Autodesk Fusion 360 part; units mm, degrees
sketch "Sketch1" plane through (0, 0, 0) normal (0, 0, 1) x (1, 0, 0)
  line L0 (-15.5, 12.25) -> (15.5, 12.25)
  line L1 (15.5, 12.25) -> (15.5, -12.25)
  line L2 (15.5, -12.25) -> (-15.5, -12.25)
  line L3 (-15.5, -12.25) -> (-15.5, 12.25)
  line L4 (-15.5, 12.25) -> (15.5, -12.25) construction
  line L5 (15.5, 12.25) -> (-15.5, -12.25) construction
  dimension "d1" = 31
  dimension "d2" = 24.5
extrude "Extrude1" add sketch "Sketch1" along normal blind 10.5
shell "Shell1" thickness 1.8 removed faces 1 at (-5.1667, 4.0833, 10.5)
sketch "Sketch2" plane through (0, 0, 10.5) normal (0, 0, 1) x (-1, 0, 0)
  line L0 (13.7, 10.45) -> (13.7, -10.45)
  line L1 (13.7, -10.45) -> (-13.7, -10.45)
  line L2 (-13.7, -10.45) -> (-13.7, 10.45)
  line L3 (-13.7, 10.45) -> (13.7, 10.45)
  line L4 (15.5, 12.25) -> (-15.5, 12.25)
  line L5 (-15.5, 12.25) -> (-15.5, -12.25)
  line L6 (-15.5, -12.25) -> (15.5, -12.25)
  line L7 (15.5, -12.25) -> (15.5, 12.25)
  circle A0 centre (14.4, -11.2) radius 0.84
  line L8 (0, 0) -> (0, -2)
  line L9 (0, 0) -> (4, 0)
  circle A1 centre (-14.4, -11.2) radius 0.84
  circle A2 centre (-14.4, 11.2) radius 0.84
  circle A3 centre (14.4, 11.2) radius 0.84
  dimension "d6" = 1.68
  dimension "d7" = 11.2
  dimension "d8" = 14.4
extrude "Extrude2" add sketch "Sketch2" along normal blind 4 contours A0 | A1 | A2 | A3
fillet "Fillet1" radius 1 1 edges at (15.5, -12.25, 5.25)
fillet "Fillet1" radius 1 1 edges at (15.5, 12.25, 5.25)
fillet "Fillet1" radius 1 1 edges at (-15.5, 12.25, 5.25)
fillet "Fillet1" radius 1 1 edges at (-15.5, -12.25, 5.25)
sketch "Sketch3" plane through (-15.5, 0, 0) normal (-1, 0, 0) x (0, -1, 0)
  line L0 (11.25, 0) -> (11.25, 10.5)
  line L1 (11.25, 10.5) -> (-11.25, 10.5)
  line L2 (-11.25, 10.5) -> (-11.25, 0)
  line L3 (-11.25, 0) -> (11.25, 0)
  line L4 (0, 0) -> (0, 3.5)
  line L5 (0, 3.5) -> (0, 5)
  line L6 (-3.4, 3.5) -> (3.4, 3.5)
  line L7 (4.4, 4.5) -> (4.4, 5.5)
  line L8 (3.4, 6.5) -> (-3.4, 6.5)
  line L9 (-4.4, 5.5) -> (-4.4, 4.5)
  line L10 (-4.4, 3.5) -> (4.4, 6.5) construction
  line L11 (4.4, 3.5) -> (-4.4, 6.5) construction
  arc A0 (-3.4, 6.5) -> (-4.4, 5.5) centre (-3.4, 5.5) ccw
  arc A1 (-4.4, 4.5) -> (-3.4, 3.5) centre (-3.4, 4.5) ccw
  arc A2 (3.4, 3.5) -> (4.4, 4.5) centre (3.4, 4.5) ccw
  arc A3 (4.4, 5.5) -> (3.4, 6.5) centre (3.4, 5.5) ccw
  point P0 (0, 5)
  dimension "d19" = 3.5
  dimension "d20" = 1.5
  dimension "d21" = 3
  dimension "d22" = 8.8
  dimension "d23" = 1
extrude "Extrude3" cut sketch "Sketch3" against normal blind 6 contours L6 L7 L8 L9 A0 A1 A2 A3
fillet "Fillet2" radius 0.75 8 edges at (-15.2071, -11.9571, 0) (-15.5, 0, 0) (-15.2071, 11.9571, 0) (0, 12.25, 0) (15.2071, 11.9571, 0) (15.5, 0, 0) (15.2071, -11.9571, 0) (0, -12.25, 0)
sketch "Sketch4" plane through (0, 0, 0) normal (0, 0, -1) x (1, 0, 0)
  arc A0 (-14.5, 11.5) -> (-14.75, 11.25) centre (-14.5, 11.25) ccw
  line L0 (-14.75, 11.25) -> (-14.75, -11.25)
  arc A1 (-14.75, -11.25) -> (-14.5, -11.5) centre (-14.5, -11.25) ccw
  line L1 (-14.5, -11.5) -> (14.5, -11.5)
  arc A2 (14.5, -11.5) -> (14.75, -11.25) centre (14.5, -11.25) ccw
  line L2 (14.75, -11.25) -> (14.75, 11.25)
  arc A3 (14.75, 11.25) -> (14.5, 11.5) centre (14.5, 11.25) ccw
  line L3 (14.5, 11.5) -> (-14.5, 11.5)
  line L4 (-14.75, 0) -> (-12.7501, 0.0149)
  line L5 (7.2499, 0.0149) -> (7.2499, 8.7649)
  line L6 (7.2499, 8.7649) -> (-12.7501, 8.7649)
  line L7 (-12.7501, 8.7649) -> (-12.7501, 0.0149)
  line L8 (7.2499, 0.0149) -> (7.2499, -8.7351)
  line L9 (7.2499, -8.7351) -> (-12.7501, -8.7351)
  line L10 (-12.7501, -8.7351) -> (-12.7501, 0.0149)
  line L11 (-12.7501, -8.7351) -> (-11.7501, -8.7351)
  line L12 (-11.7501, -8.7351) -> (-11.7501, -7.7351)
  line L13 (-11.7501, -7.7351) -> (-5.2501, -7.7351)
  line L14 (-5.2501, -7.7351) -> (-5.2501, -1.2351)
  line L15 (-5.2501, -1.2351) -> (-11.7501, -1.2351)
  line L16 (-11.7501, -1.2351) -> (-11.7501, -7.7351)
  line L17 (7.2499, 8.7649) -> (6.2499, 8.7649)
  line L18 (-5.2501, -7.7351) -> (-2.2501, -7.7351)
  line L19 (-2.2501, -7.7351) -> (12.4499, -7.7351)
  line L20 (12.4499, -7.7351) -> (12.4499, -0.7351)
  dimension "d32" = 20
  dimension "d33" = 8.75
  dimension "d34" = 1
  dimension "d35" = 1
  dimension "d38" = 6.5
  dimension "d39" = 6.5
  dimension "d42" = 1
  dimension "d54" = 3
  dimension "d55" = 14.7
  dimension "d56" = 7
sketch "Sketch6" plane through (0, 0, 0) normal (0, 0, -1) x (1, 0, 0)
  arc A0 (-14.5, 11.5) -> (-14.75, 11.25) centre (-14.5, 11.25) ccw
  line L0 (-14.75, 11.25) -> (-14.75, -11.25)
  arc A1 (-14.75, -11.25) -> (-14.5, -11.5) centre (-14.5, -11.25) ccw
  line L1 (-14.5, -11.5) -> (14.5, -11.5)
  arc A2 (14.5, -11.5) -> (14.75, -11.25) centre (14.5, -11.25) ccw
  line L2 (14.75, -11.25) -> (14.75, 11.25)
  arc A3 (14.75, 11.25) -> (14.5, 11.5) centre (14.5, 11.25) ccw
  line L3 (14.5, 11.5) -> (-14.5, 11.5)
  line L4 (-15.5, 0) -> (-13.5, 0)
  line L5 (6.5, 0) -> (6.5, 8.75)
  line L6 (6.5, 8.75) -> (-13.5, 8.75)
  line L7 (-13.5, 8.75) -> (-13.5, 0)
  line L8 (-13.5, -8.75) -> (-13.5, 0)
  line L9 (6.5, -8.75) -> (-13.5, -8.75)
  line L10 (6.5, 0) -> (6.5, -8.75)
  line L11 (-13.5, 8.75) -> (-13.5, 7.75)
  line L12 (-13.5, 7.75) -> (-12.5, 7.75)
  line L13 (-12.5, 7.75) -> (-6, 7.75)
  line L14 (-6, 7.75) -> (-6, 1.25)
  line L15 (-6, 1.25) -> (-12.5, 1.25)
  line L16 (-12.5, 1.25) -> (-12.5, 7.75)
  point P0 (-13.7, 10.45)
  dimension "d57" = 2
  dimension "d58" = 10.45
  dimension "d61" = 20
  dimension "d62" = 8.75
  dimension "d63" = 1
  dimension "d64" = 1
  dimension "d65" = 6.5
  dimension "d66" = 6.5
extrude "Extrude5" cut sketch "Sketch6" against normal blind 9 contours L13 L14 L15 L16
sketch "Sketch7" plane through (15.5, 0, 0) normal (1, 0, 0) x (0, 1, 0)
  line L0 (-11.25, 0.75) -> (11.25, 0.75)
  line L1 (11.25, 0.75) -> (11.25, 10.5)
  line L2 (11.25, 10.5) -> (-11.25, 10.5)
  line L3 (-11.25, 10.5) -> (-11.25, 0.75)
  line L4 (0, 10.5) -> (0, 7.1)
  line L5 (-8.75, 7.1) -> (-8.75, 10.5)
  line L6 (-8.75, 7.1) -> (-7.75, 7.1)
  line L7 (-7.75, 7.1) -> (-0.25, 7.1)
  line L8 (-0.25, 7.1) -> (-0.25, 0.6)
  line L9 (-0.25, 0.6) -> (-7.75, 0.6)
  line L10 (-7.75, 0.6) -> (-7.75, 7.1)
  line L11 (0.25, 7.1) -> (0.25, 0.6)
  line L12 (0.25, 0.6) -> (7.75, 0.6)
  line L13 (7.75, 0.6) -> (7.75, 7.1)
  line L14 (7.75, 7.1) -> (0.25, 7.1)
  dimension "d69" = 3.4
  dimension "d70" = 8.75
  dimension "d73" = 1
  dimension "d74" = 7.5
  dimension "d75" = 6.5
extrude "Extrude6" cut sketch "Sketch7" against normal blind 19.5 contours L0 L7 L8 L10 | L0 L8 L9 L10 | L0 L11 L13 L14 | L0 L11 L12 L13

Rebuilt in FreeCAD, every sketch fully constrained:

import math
import FreeCAD as App
import Part
import Sketcher


def edges_at(feature, points):
    """Names of the edges that pass closest to the given points."""
    edges = feature.Shape.Edges
    near = lambda p: min(range(len(edges)), key=lambda i: edges[i].distToShape(Part.Vertex(*p))[0])
    return sorted({f"Edge{near(p) + 1}" for p in points})


def faces_at(feature, points):
    """Names of the faces that lie closest to the given points."""
    faces = feature.Shape.Faces
    near = lambda p: min(range(len(faces)), key=lambda i: faces[i].distToShape(Part.Vertex(*p))[0])
    return sorted({f"Face{near(p) + 1}" for p in points})


def add_polygon(sketch, points):
    """Adds a closed chain of lines whose ends are joined by coincident constraints."""
    first, n = sketch.GeometryCount, len(points)
    for a, b in zip(points, points[1:] + points[:1]):
        sketch.addGeometry(Part.LineSegment(App.Vector(*a, 0), App.Vector(*b, 0)), False)
    for i in range(n):
        sketch.addConstraint(Sketcher.Constraint("Coincident", first + i, 2, first + (i + 1) % n, 1))

doc = App.newDocument("Part")
params = doc.addObject("Spreadsheet::Sheet", "Params")
for row, (alias, value) in enumerate([
    ("sketch1_width", "31 mm"),
    ("sketch1_height", "24.5 mm"),
    ("pad1_length", "10.5 mm"),
    ("thickness_wall", "1.8 mm"),
    ("sketch2_diameter", "1.68 mm"),
    ("pad2_length", "4 mm"),
    ("fillet_radius", "1 mm"),
    ("fillet2_radius", "1 mm"),
    ("fillet3_radius", "1 mm"),
    ("fillet4_radius", "1 mm"),
    ("sketch3_radius", "1 mm"),
    ("sketch3_height", "1 mm"),
    ("sketch3_width", "6.8 mm"),
    ("pocket1_length", "6 mm"),
    ("fillet5_radius", "0.75 mm"),
    ("sketch4_width", "6.5 mm"),
    ("pocket2_length", "9 mm"),
    ("sketch5_width", "7.5 mm"),
    ("sketch5_height", "6.5 mm"),
    ("pocket3_length", "19.5 mm"),
], start=1):
    params.set(f"A{row}", alias)
    params.set(f"B{row}", "=" + value)
    params.setAlias(f"B{row}", alias)

body = doc.addObject("PartDesign::Body", "Body")

# Sketch on XY plane
sketch1 = body.newObject("Sketcher::SketchObject", "Sketch")
sketch1.AttachmentSupport = (doc.getObject("XY_Plane"), [""])
sketch1.MapMode = "FlatFace"
add_polygon(sketch1, [(15.5, 12.25), (-15.5, 12.25), (-15.5, -12.25), (15.5, -12.25)])  # lines 0-3
sketch1.addConstraint([
    Sketcher.Constraint("Horizontal", 0),
    Sketcher.Constraint("Vertical", 1),
    Sketcher.Constraint("Horizontal", 2),
    Sketcher.Constraint("Vertical", 3),
    Sketcher.Constraint("Symmetric", 0, 2, 2, 2, -1, 1),
    Sketcher.Constraint("DistanceX", 0, 2, 0, 1, 31.0),
    Sketcher.Constraint("DistanceY", 1, 2, 1, 1, 24.5),
])
sketch1.setExpression("Constraints[9]", "Params.sketch1_width")
sketch1.setExpression("Constraints[10]", "Params.sketch1_height")
pad1 = body.newObject("PartDesign::Pad", "Pad")
pad1.Profile = sketch1
pad1.setExpression("Length", "Params.pad1_length")
doc.recompute()

thickness = body.newObject("PartDesign::Thickness", "Thickness")
thickness.Base = (pad1, faces_at(pad1, [(-5.167, 4.083, 10.5)]))
thickness.setExpression("Value", "Params.thickness_wall")
thickness.Reversed = True
thickness.Join = "Intersection"

# Sketch on XY plane
sketch2 = body.newObject("Sketcher::SketchObject", "Sketch001")
sketch2.AttachmentSupport = (doc.getObject("XY_Plane"), [""])
sketch2.MapMode = "FlatFace"
sketch2.AttachmentOffset = App.Placement(App.Vector(0, 0, 10.5), App.Rotation())
sketch2.addGeometry([
    Part.Circle(App.Vector(-14.4, 11.2, 0), App.Vector(0, 0, 1), 0.84),
    Part.Circle(App.Vector(14.4, 11.2, 0), App.Vector(0, 0, 1), 0.84),
    Part.Circle(App.Vector(14.4, -11.2, 0), App.Vector(0, 0, 1), 0.84),
    Part.Circle(App.Vector(-14.4, -11.2, 0), App.Vector(0, 0, 1), 0.84),
], False)
sketch2.addConstraint([
    Sketcher.Constraint("Equal", 0, 1),
    Sketcher.Constraint("Equal", 1, 2),
    Sketcher.Constraint("Equal", 2, 3),
    Sketcher.Constraint("Symmetric", 0, 3, 2, 3, -1, 1),
    Sketcher.Constraint("Symmetric", 1, 3, 3, 3, -1, 1),
    Sketcher.Constraint("Symmetric", 0, 3, 1, 3, -2),
    Sketcher.Constraint("Diameter", 0, 1.68),
    Sketcher.Constraint("DistanceX", 0, 3, -1, 1, 14.4),
    Sketcher.Constraint("DistanceY", -1, 1, 0, 3, 11.2),
])
sketch2.setExpression("Constraints[6]", "Params.sketch2_diameter")
pad2 = body.newObject("PartDesign::Pad", "Pad001")
pad2.Profile = sketch2
pad2.setExpression("Length", "Params.pad2_length")
doc.recompute()

fillet = body.newObject("PartDesign::Fillet", "Fillet")
fillet.Base = (pad2, edges_at(pad2, [(15.5, -12.25, 5.25)]))
fillet.setExpression("Radius", "Params.fillet_radius")
doc.recompute()

fillet2 = body.newObject("PartDesign::Fillet", "Fillet001")
fillet2.Base = (fillet, edges_at(fillet, [(15.5, 12.25, 5.25)]))
fillet2.setExpression("Radius", "Params.fillet2_radius")
doc.recompute()

fillet3 = body.newObject("PartDesign::Fillet", "Fillet002")
fillet3.Base = (fillet2, edges_at(fillet2, [(-15.5, 12.25, 5.25)]))
fillet3.setExpression("Radius", "Params.fillet3_radius")
doc.recompute()

fillet4 = body.newObject("PartDesign::Fillet", "Fillet003")
fillet4.Base = (fillet3, edges_at(fillet3, [(-15.5, -12.25, 5.25)]))
fillet4.setExpression("Radius", "Params.fillet4_radius")

# Sketch on YZ plane
sketch3 = body.newObject("Sketcher::SketchObject", "Sketch002")
sketch3.AttachmentSupport = (doc.getObject("YZ_Plane"), [""])
sketch3.MapMode = "FlatFace"
sketch3.AttachmentOffset = App.Placement(App.Vector(0, 0, -15.5), App.Rotation())
sketch3.addGeometry([
    Part.LineSegment(App.Vector(3.4, 3.5, 0), App.Vector(-3.4, 3.5, 0)),  # 0
    Part.ArcOfCircle(Part.Circle(App.Vector(-3.4, 4.5, 0), App.Vector(0, 0, 1), 1), math.radians(180), math.radians(270)),  # 1
    Part.LineSegment(App.Vector(-4.4, 4.5, 0), App.Vector(-4.4, 5.5, 0)),  # 2
    Part.ArcOfCircle(Part.Circle(App.Vector(-3.4, 5.5, 0), App.Vector(0, 0, 1), 1), math.radians(90), math.radians(180)),  # 3
    Part.LineSegment(App.Vector(-3.4, 6.5, 0), App.Vector(3.4, 6.5, 0)),  # 4
    Part.ArcOfCircle(Part.Circle(App.Vector(3.4, 5.5, 0), App.Vector(0, 0, 1), 1), math.radians(0), math.radians(90)),  # 5
    Part.LineSegment(App.Vector(4.4, 5.5, 0), App.Vector(4.4, 4.5, 0)),  # 6
    Part.ArcOfCircle(Part.Circle(App.Vector(3.4, 4.5, 0), App.Vector(0, 0, 1), 1), math.radians(-90), math.radians(0)),  # 7
], False)
sketch3.addConstraint([
    Sketcher.Constraint("Tangent", 0, 2, 1, 2),
    Sketcher.Constraint("Tangent", 1, 1, 2, 1),
    Sketcher.Constraint("Tangent", 2, 2, 3, 2),
    Sketcher.Constraint("Tangent", 3, 1, 4, 1),
    Sketcher.Constraint("Tangent", 4, 2, 5, 2),
    Sketcher.Constraint("Tangent", 5, 1, 6, 1),
    Sketcher.Constraint("Tangent", 6, 2, 7, 2),
    Sketcher.Constraint("Tangent", 7, 1, 0, 1),
    Sketcher.Constraint("Horizontal", 0),
    Sketcher.Constraint("Vertical", 2),
    Sketcher.Constraint("Horizontal", 4),
    Sketcher.Constraint("Vertical", 6),
    Sketcher.Constraint("Equal", 1, 3),
    Sketcher.Constraint("Equal", 3, 5),
    Sketcher.Constraint("Equal", 5, 7),
    Sketcher.Constraint("Radius", 1, 1.0),
    Sketcher.Constraint("DistanceY", 2, 1, 2, 2, 1.0),
    Sketcher.Constraint("DistanceY", -1, 1, 0, 2, 3.5),
    Sketcher.Constraint("DistanceX", 0, 2, 0, 1, 6.8),
    Sketcher.Constraint("DistanceX", 1, 3, -1, 1, 3.4),
])
sketch3.setExpression("Constraints[15]", "Params.sketch3_radius")
sketch3.setExpression("Constraints[16]", "Params.sketch3_height")
sketch3.setExpression("Constraints[18]", "Params.sketch3_width")
pocket1 = body.newObject("PartDesign::Pocket", "Pocket")
pocket1.Profile = sketch3
pocket1.setExpression("Length", "Params.pocket1_length")
pocket1.Reversed = True
doc.recompute()

fillet5 = body.newObject("PartDesign::Fillet", "Fillet004")
fillet5.Base = (pocket1, edges_at(pocket1, [
    (-15.207, -11.957, 0),
    (-15.5, 0, 0),
    (-15.207, 11.957, 0),
    (0, 12.25, 0),
    (15.207, 11.957, 0),
    (15.5, 0, 0),
    (15.207, -11.957, 0),
    (0, -12.25, 0),
]))
fillet5.setExpression("Radius", "Params.fillet5_radius")

# Sketch on XY plane
sketch4 = body.newObject("Sketcher::SketchObject", "Sketch003")
sketch4.AttachmentSupport = (doc.getObject("XY_Plane"), [""])
sketch4.MapMode = "FlatFace"
add_polygon(sketch4, [(-6, -7.75), (-12.5, -7.75), (-12.5, -1.25), (-6, -1.25)])  # lines 0-3
sketch4.addConstraint([
    Sketcher.Constraint("Horizontal", 0),
    Sketcher.Constraint("Vertical", 1),
    Sketcher.Constraint("Horizontal", 2),
    Sketcher.Constraint("Vertical", 3),
    Sketcher.Constraint("Equal", 2, 1),
    Sketcher.Constraint("DistanceX", 0, 2, 0, 1, 6.5),
    Sketcher.Constraint("DistanceX", 2, 2, -1, 1, 6.0),
    Sketcher.Constraint("DistanceY", 0, 2, -1, 1, 7.75),
])
sketch4.setExpression("Constraints[9]", "Params.sketch4_width")
pocket2 = body.newObject("PartDesign::Pocket", "Pocket001")
pocket2.Profile = sketch4
pocket2.setExpression("Length", "Params.pocket2_length")
pocket2.Reversed = True

# Sketch on YZ plane
sketch5 = body.newObject("Sketcher::SketchObject", "Sketch004")
sketch5.AttachmentSupport = (doc.getObject("YZ_Plane"), [""])
sketch5.MapMode = "FlatFace"
sketch5.AttachmentOffset = App.Placement(App.Vector(0, 0, 15.5), App.Rotation())
add_polygon(sketch5, [(-7.75, 7.1), (-7.75, 0.6), (-0.25, 0.6), (-0.25, 7.1)])  # lines 0-3
add_polygon(sketch5, [(0.25, 7.1), (0.25, 0.6), (7.75, 0.6), (7.75, 7.1)])  # lines 4-7
sketch5.addConstraint([
    Sketcher.Constraint("Vertical", 0),
    Sketcher.Constraint("Horizontal", 1),
    Sketcher.Constraint("Vertical", 2),
    Sketcher.Constraint("Horizontal", 3),
    Sketcher.Constraint("Vertical", 4),
    Sketcher.Constraint("Horizontal", 5),
    Sketcher.Constraint("Vertical", 6),
    Sketcher.Constraint("Horizontal", 7),
    Sketcher.Constraint("Symmetric", 1, 2, 4, 2, -2),
    Sketcher.Constraint("Symmetric", 3, 2, 6, 2, -2),
    Sketcher.Constraint("DistanceX", 1, 1, 1, 2, 7.5),
    Sketcher.Constraint("DistanceY", 0, 2, 0, 1, 6.5),
    Sketcher.Constraint("DistanceX", 0, 2, 4, 2, 8.0),
    Sketcher.Constraint("DistanceY", -1, 1, 0, 2, 0.6),
])
sketch5.setExpression("Constraints[18]", "Params.sketch5_width")
sketch5.setExpression("Constraints[19]", "Params.sketch5_height")
pocket3 = body.newObject("PartDesign::Pocket", "Pocket002")
pocket3.Profile = sketch5
pocket3.setExpression("Length", "Params.pocket3_length")

doc.recompute()
